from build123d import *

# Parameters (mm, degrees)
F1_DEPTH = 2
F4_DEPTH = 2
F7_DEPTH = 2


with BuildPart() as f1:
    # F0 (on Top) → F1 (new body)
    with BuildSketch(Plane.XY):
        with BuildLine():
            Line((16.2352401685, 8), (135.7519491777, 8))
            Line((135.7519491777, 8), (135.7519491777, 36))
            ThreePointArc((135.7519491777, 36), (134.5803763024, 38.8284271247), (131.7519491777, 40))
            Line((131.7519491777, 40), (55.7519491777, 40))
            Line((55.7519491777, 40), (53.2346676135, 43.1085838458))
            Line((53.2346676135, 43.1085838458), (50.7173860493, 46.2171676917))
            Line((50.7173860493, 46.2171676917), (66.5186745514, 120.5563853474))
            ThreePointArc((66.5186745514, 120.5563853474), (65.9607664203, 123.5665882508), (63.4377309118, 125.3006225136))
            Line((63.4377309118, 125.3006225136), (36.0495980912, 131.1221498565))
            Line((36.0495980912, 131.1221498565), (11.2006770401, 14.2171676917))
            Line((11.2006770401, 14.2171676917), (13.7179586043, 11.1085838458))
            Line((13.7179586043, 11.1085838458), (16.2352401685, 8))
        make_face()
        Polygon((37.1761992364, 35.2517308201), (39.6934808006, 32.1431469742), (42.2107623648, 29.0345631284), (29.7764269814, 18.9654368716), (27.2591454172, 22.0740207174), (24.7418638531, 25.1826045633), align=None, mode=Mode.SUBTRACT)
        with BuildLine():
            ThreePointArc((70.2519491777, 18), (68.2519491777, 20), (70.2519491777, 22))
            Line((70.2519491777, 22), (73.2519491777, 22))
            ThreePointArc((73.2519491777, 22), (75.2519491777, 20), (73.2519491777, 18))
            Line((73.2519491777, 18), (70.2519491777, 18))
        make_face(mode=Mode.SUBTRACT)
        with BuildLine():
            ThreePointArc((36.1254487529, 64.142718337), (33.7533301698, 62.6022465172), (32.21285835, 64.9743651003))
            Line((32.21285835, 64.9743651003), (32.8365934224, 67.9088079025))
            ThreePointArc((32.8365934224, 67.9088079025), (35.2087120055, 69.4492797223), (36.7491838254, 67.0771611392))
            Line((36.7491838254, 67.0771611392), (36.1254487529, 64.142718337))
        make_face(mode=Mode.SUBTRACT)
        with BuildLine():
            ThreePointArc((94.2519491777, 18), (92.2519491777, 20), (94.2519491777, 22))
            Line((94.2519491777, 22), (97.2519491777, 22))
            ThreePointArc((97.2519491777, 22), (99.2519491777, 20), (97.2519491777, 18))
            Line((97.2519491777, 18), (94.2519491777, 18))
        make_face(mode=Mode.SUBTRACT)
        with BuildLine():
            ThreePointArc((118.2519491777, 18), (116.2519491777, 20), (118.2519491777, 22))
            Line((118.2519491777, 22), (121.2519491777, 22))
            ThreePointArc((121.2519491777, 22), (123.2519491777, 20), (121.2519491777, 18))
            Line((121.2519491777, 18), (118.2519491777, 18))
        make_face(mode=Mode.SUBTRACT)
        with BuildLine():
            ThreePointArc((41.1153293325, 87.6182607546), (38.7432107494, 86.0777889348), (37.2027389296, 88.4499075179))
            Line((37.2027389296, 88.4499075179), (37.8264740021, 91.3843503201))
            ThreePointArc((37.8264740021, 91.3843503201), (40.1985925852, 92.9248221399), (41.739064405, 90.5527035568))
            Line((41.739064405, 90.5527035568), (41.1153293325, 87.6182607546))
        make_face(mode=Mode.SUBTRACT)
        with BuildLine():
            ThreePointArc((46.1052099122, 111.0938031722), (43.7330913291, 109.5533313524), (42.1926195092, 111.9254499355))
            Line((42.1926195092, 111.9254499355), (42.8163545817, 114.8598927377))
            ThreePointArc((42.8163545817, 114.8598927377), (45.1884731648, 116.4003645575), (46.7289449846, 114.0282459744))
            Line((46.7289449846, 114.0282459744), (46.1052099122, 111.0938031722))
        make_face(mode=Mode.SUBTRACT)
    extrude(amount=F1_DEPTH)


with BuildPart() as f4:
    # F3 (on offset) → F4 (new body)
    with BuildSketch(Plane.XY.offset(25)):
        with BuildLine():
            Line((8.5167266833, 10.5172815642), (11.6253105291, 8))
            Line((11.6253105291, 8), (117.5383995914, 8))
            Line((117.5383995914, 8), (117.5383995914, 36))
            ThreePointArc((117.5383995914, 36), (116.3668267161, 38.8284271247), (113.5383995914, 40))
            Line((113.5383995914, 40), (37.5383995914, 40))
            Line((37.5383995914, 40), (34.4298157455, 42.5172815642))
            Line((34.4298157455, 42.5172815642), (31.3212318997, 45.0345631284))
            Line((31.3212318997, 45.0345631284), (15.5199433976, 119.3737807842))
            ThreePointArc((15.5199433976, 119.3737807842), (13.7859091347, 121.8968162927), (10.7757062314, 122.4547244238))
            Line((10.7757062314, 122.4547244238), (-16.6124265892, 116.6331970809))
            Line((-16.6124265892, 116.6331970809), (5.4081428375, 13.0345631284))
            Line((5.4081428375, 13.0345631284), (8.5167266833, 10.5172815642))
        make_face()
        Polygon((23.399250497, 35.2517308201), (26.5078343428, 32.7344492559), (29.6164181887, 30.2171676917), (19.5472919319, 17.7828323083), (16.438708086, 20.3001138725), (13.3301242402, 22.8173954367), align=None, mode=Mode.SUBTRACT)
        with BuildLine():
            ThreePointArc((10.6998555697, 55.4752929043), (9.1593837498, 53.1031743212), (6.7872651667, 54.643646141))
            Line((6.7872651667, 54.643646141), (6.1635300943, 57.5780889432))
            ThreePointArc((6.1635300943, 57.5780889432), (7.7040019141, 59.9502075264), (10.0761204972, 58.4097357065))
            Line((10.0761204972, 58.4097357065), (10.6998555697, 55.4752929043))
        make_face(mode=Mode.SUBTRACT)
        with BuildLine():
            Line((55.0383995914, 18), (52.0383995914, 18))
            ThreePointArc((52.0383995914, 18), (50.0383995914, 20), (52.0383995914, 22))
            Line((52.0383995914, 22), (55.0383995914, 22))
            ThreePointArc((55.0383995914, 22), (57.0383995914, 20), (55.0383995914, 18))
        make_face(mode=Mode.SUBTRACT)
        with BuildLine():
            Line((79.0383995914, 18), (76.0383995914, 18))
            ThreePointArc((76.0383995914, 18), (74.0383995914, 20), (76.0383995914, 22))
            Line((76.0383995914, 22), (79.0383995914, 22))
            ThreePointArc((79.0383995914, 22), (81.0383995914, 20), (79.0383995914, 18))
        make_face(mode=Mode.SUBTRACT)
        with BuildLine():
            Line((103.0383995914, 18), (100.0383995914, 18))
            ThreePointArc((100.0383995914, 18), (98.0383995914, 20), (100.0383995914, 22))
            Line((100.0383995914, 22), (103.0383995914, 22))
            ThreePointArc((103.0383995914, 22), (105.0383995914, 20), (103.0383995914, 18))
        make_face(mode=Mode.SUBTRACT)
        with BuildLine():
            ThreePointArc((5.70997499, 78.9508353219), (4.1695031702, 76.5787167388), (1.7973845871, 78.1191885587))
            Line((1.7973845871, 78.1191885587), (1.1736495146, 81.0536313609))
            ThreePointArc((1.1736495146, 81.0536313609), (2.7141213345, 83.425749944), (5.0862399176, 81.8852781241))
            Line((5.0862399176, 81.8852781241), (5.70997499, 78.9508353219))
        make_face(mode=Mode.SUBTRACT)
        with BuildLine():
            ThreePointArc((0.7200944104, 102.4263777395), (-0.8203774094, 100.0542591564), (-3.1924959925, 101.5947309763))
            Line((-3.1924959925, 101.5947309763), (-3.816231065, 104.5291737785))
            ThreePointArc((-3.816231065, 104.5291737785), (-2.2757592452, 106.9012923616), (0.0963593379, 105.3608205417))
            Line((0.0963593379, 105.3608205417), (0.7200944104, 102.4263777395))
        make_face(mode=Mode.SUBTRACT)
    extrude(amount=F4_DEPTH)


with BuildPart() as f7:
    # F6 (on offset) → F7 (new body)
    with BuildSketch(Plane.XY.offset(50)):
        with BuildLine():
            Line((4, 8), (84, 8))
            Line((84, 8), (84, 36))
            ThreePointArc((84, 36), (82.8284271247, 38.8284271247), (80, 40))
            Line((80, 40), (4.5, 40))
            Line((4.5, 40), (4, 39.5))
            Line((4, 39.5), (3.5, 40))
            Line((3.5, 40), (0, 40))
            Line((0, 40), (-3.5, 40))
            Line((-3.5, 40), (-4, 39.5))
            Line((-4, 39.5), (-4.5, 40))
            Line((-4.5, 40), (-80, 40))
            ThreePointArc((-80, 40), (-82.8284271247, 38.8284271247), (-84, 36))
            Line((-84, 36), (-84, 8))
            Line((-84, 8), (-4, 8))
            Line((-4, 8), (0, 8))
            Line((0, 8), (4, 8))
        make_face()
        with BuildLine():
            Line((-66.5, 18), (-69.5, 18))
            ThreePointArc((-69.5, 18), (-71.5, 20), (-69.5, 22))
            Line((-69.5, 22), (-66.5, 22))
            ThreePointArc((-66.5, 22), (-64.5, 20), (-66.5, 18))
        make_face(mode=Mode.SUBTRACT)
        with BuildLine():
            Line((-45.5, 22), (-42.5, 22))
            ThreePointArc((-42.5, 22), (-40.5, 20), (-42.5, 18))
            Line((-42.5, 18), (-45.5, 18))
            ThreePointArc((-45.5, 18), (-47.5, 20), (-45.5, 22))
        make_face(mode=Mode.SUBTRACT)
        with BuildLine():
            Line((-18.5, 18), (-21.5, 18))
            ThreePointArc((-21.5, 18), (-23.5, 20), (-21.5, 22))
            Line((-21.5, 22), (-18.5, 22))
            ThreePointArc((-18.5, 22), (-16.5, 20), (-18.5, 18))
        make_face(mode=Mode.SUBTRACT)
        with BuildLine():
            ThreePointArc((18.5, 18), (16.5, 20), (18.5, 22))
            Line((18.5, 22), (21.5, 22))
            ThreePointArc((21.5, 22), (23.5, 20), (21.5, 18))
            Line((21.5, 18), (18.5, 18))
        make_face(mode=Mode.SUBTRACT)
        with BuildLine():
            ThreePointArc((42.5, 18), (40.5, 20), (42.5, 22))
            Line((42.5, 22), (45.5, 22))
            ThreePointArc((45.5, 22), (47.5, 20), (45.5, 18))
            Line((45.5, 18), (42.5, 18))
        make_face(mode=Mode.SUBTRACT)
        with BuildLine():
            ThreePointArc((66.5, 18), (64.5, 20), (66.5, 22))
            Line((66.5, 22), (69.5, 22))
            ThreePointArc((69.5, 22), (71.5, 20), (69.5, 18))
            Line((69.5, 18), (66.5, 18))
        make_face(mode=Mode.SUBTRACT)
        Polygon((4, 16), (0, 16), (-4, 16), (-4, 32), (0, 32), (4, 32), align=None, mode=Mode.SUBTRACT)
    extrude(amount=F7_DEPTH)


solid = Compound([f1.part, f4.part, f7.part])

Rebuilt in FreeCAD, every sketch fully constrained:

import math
import FreeCAD as App
import Part
import Sketcher
Q = App.Units.Quantity


def add_polygon(sketch, points):
    """Adds a closed chain of lines whose ends are joined by coincident constraints."""
    first, n = sketch.GeometryCount, len(points)
    for a, b in zip(points, points[1:] + points[:1]):
        sketch.addGeometry(Part.LineSegment(App.Vector(*a, 0), App.Vector(*b, 0)), False)
    for i in range(n):
        sketch.addConstraint(Sketcher.Constraint("Coincident", first + i, 2, first + (i + 1) % n, 1))

doc = App.newDocument("Part")
params = doc.addObject("Spreadsheet::Sheet", "Params")
for row, (alias, value) in enumerate([
    ("sketch1_radius", "4 mm"),
    ("sketch1_radius2", "2 mm"),
    ("sketch1_width", "76 mm"),
    ("sketch1_width2", "3 mm"),
    ("sketch1_height", "28 mm"),
    ("pad1_length", "2 mm"),
    ("sketch2_radius", "4 mm"),
    ("sketch2_radius2", "2 mm"),
    ("sketch2_width", "76 mm"),
    ("sketch2_width2", "3 mm"),
    ("sketch2_height", "28 mm"),
    ("pad2_length", "2 mm"),
    ("sketch3_radius", "4 mm"),
    ("sketch3_radius2", "2 mm"),
    ("sketch3_width", "7 mm"),
    ("sketch3_width2", "168 mm"),
    ("sketch3_width3", "3 mm"),
    ("pad3_length", "2 mm"),
], start=1):
    params.set(f"A{row}", alias)
    params.set(f"B{row}", "=" + value)
    params.setAlias(f"B{row}", alias)

body = doc.addObject("PartDesign::Body", "Body")

# Sketch on XY plane
sketch1 = body.newObject("Sketcher::SketchObject", "Sketch")
sketch1.AttachmentSupport = (doc.getObject("XY_Plane"), [""])
sketch1.MapMode = "FlatFace"
sketch1.addGeometry(Part.LineSegment(App.Vector(16.23524, 8, 0), App.Vector(135.751949, 8, 0)), False)  # 0
sketch1.addGeometry(Part.LineSegment(App.Vector(135.751949, 8, 0), App.Vector(135.751949, 36, 0)), False)  # 1
sketch1.addGeometry(Part.ArcOfCircle(Part.Circle(App.Vector(131.751949, 36, 0), App.Vector(0, 0, 1), 4), math.radians(0), math.radians(90)), False)  # 2
sketch1.addGeometry(Part.LineSegment(App.Vector(131.751949, 40, 0), App.Vector(55.751949, 40, 0)), False)  # 3
sketch1.addGeometry(Part.LineSegment(App.Vector(55.751949, 40, 0), App.Vector(53.234668, 43.108584, 0)), False)  # 4
sketch1.addGeometry(Part.LineSegment(App.Vector(53.234668, 43.108584, 0), App.Vector(50.717386, 46.217168, 0)), False)  # 5
sketch1.addGeometry(Part.LineSegment(App.Vector(50.717386, 46.217168, 0), App.Vector(66.518675, 120.556385, 0)), False)  # 6
sketch1.addGeometry(Part.ArcOfCircle(Part.Circle(App.Vector(62.606084, 121.388032, 0), App.Vector(0, 0, 1), 4), math.radians(-12), math.radians(78)), False)  # 7
sketch1.addGeometry(Part.LineSegment(App.Vector(63.437731, 125.300623, 0), App.Vector(36.049598, 131.12215, 0)), False)  # 8
sketch1.addGeometry(Part.LineSegment(App.Vector(36.049598, 131.12215, 0), App.Vector(11.200677, 14.217168, 0)), False)  # 9
sketch1.addGeometry(Part.LineSegment(App.Vector(11.200677, 14.217168, 0), App.Vector(13.717959, 11.108584, 0)), False)  # 10
sketch1.addGeometry(Part.LineSegment(App.Vector(13.717959, 11.108584, 0), App.Vector(16.23524, 8, 0)), False)  # 11
add_polygon(sketch1, [(24.741864, 25.182605), (37.176199, 35.251731), (39.693481, 32.143147), (42.210762, 29.034563), (29.776427, 18.965437), (27.259145, 22.074021)])  # lines 12-17
sketch1.addGeometry(Part.LineSegment(App.Vector(73.251949, 18, 0), App.Vector(70.251949, 18, 0)), False)  # 18
sketch1.addGeometry(Part.ArcOfCircle(Part.Circle(App.Vector(70.251949, 20, 0), App.Vector(0, 0, 1), 2), math.radians(90), math.radians(270)), False)  # 19
sketch1.addGeometry(Part.LineSegment(App.Vector(70.251949, 22, 0), App.Vector(73.251949, 22, 0)), False)  # 20
sketch1.addGeometry(Part.ArcOfCircle(Part.Circle(App.Vector(73.251949, 20, 0), App.Vector(0, 0, 1), 2), math.radians(-90), math.radians(90)), False)  # 21
sketch1.addGeometry(Part.LineSegment(App.Vector(36.749184, 67.077161, 0), App.Vector(36.125449, 64.142718, 0)), False)  # 22
sketch1.addGeometry(Part.ArcOfCircle(Part.Circle(App.Vector(34.169154, 64.558542, 0), App.Vector(0, 0, 1), 2), math.radians(168), math.radians(348)), False)  # 23
sketch1.addGeometry(Part.LineSegment(App.Vector(32.212858, 64.974365, 0), App.Vector(32.836593, 67.908808, 0)), False)  # 24
sketch1.addGeometry(Part.ArcOfCircle(Part.Circle(App.Vector(34.792889, 67.492985, 0), App.Vector(0, 0, 1), 2), math.radians(-12), math.radians(168)), False)  # 25
sketch1.addGeometry(Part.LineSegment(App.Vector(97.251949, 18, 0), App.Vector(94.251949, 18, 0)), False)  # 26
sketch1.addGeometry(Part.ArcOfCircle(Part.Circle(App.Vector(94.251949, 20, 0), App.Vector(0, 0, 1), 2), math.radians(90), math.radians(270)), False)  # 27
sketch1.addGeometry(Part.LineSegment(App.Vector(94.251949, 22, 0), App.Vector(97.251949, 22, 0)), False)  # 28
sketch1.addGeometry(Part.ArcOfCircle(Part.Circle(App.Vector(97.251949, 20, 0), App.Vector(0, 0, 1), 2), math.radians(-90), math.radians(90)), False)  # 29
sketch1.addGeometry(Part.LineSegment(App.Vector(121.251949, 18, 0), App.Vector(118.251949, 18, 0)), False)  # 30
sketch1.addGeometry(Part.ArcOfCircle(Part.Circle(App.Vector(118.251949, 20, 0), App.Vector(0, 0, 1), 2), math.radians(90), math.radians(270)), False)  # 31
sketch1.addGeometry(Part.LineSegment(App.Vector(118.251949, 22, 0), App.Vector(121.251949, 22, 0)), False)  # 32
sketch1.addGeometry(Part.ArcOfCircle(Part.Circle(App.Vector(121.251949, 20, 0), App.Vector(0, 0, 1), 2), math.radians(-90), math.radians(90)), False)  # 33
sketch1.addGeometry(Part.LineSegment(App.Vector(41.739064, 90.552704, 0), App.Vector(41.115329, 87.618261, 0)), False)  # 34
sketch1.addGeometry(Part.ArcOfCircle(Part.Circle(App.Vector(39.159034, 88.034084, 0), App.Vector(0, 0, 1), 2), math.radians(168), math.radians(348)), False)  # 35
sketch1.addGeometry(Part.LineSegment(App.Vector(37.202739, 88.449908, 0), App.Vector(37.826474, 91.38435, 0)), False)  # 36
sketch1.addGeometry(Part.ArcOfCircle(Part.Circle(App.Vector(39.782769, 90.968527, 0), App.Vector(0, 0, 1), 2), math.radians(-12), math.radians(168)), False)  # 37
sketch1.addGeometry(Part.LineSegment(App.Vector(46.728945, 114.028246, 0), App.Vector(46.10521, 111.093803, 0)), False)  # 38
sketch1.addGeometry(Part.ArcOfCircle(Part.Circle(App.Vector(44.148915, 111.509627, 0), App.Vector(0, 0, 1), 2), math.radians(168), math.radians(348)), False)  # 39
sketch1.addGeometry(Part.LineSegment(App.Vector(42.19262, 111.92545, 0), App.Vector(42.816355, 114.859893, 0)), False)  # 40
sketch1.addGeometry(Part.ArcOfCircle(Part.Circle(App.Vector(44.77265, 114.444069, 0), App.Vector(0, 0, 1), 2), math.radians(-12), math.radians(168)), False)  # 41
sketch1.addConstraint([
    Sketcher.Constraint("Coincident", 0, 2, 1, 1),
    Sketcher.Constraint("Tangent", 1, 2, 2, 1),
    Sketcher.Constraint("Tangent", 2, 2, 3, 1),
    Sketcher.Constraint("Coincident", 3, 2, 4, 1),
    Sketcher.Constraint("Coincident", 4, 2, 5, 1),
    Sketcher.Constraint("Coincident", 5, 2, 6, 1),
    Sketcher.Constraint("Tangent", 6, 2, 7, 1),
    Sketcher.Constraint("Tangent", 7, 2, 8, 1),
    Sketcher.Constraint("Coincident", 8, 2, 9, 1),
    Sketcher.Constraint("Coincident", 9, 2, 10, 1),
    Sketcher.Constraint("Coincident", 10, 2, 11, 1),
    Sketcher.Constraint("Coincident", 11, 2, 0, 1),
    Sketcher.Constraint("Tangent", 18, 2, 19, 2),
    Sketcher.Constraint("Tangent", 19, 1, 20, 1),
    Sketcher.Constraint("Tangent", 20, 2, 21, 2),
    Sketcher.Constraint("Tangent", 21, 1, 18, 1),
    Sketcher.Constraint("Tangent", 22, 2, 23, 2),
    Sketcher.Constraint("Tangent", 23, 1, 24, 1),
    Sketcher.Constraint("Tangent", 24, 2, 25, 2),
    Sketcher.Constraint("Tangent", 25, 1, 22, 1),
    Sketcher.Constraint("Tangent", 26, 2, 27, 2),
    Sketcher.Constraint("Tangent", 27, 1, 28, 1),
    Sketcher.Constraint("Tangent", 28, 2, 29, 2),
    Sketcher.Constraint("Tangent", 29, 1, 26, 1),
    Sketcher.Constraint("Tangent", 30, 2, 31, 2),
    Sketcher.Constraint("Tangent", 31, 1, 32, 1),
    Sketcher.Constraint("Tangent", 32, 2, 33, 2),
    Sketcher.Constraint("Tangent", 33, 1, 30, 1),
    Sketcher.Constraint("Tangent", 34, 2, 35, 2),
    Sketcher.Constraint("Tangent", 35, 1, 36, 1),
    Sketcher.Constraint("Tangent", 36, 2, 37, 2),
    Sketcher.Constraint("Tangent", 37, 1, 34, 1),
    Sketcher.Constraint("Tangent", 38, 2, 39, 2),
    Sketcher.Constraint("Tangent", 39, 1, 40, 1),
    Sketcher.Constraint("Tangent", 40, 2, 41, 2),
    Sketcher.Constraint("Tangent", 41, 1, 38, 1),
    Sketcher.Constraint("Horizontal", 0),
    Sketcher.Constraint("Vertical", 1),
    Sketcher.Constraint("Horizontal", 3),
    Sketcher.Constraint("Horizontal", 18),
    Sketcher.Constraint("Horizontal", 20),
    Sketcher.Constraint("Horizontal", 26),
    Sketcher.Constraint("Horizontal", 28),
    Sketcher.Constraint("Horizontal", 30),
    Sketcher.Constraint("Horizontal", 32),
    Sketcher.Constraint("Equal", 2, 7),
    Sketcher.Constraint("Equal", 21, 23),
    Sketcher.Constraint("Equal", 23, 25),
    Sketcher.Constraint("Equal", 25, 27),
    Sketcher.Constraint("Equal", 29, 31),
    Sketcher.Constraint("Equal", 33, 35),
    Sketcher.Constraint("Equal", 35, 37),
    Sketcher.Constraint("Equal", 37, 39),
    Sketcher.Constraint("Equal", 39, 41),
    Sketcher.Constraint("Parallel", 4, 5),
    Sketcher.Constraint("Perpendicular", 6, 8),
    Sketcher.Constraint("Perpendicular", 8, 9),
    Sketcher.Constraint("Parallel", 5, 10),
    Sketcher.Constraint("Parallel", 10, 11),
    Sketcher.Constraint("Perpendicular", 11, 12),
    Sketcher.Constraint("Perpendicular", 12, 13),
    Sketcher.Constraint("Parallel", 13, 14),
    Sketcher.Constraint("Perpendicular", 14, 15),
    Sketcher.Constraint("Perpendicular", 15, 16),
    Sketcher.Constraint("Parallel", 16, 17),
    Sketcher.Constraint("Parallel", 9, 22),
    Sketcher.Constraint("Parallel", 24, 34),
    Sketcher.Constraint("Parallel", 36, 38),
    Sketcher.Constraint("Horizontal", 21, 3, 27, 3),
    Sketcher.Constraint("Horizontal", 29, 3, 31, 3),
    Sketcher.Constraint("Equal", 20, 26),
    Sketcher.Constraint("Equal", 28, 30),
    Sketcher.Constraint("Equal", 4, 5),
    Sketcher.Constraint("Equal", 5, 10),
    Sketcher.Constraint("Equal", 10, 11),
    Sketcher.Constraint("Equal", 11, 13),
    Sketcher.Constraint("Equal", 13, 14),
    Sketcher.Constraint("Equal", 14, 16),
    Sketcher.Constraint("Equal", 24, 34),
    Sketcher.Constraint("Equal", 36, 38),
    Sketcher.Constraint("Radius", 2, Q("4 mm")),
    Sketcher.Constraint("Radius", 19, Q("2 mm")),
    Sketcher.Constraint("DistanceX", 3, 2, 3, 1, Q("76 mm")),
    Sketcher.Constraint("DistanceX", 18, 2, 18, 1, Q("3 mm")),
    Sketcher.Constraint("DistanceY", 1, 1, 1, 2, Q("28 mm")),
    Sketcher.Constraint("Angle", 4, Q("129 deg")),
    Sketcher.Constraint("Angle", 6, Q("78 deg")),
    Sketcher.Constraint("Distance", 4, Q("4 mm")),
    Sketcher.Constraint("Distance", 6, Q("76 mm")),
    Sketcher.Constraint("Distance", 8, Q("28 mm")),
    Sketcher.Constraint("Distance", 12, Q("16 mm")),
    Sketcher.Constraint("Distance", 22, Q("3 mm")),
    Sketcher.Constraint("DistanceY", -1, 1, 2, 3, Q("36 mm")),
    Sketcher.Constraint("DistanceY", -1, 1, 19, 3, Q("20 mm")),
    Sketcher.Constraint("DistanceX", 21, 3, 27, 3, Q("21 mm")),
    Sketcher.Constraint("DistanceX", 29, 3, 31, 3, Q("21 mm")),
    Sketcher.Constraint("DistanceX", 19, 3, 2, 3, Q("61.5 mm")),
    Sketcher.Constraint("DistanceX", -1, 1, 8, 2, Q("36.049598 mm")),
    Sketcher.Constraint("DistanceX", -1, 1, 12, 2, Q("37.176199 mm")),
    Sketcher.Constraint("DistanceY", 25, 3, 35, 3, Q("20.5411 mm")),
    Sketcher.Constraint("DistanceY", 37, 3, 39, 3, Q("20.5411 mm")),
    Sketcher.Constraint("DistanceY", 4, 2, 25, 3, Q("24.384401 mm")),
    Sketcher.Constraint("DistanceX", -1, 1, 25, 3, Q("34.792889 mm")),
    Sketcher.Constraint("DistanceX", -1, 1, 37, 3, Q("39.782769 mm")),
    Sketcher.Constraint("DistanceX", -1, 1, 41, 3, Q("44.77265 mm")),
    Sketcher.Constraint("DistanceY", -1, 1, 12, 2, Q("35.251731 mm")),
])
sketch1.setExpression("Constraints[86]", "Params.sketch1_radius")
sketch1.setExpression("Constraints[87]", "Params.sketch1_radius2")
sketch1.setExpression("Constraints[88]", "Params.sketch1_width")
sketch1.setExpression("Constraints[89]", "Params.sketch1_width2")
sketch1.setExpression("Constraints[90]", "Params.sketch1_height")
pad1 = body.newObject("PartDesign::Pad", "Pad")
pad1.Profile = sketch1
pad1.setExpression("Length", "Params.pad1_length")
body2 = doc.addObject("PartDesign::Body", "Body001")

# Sketch on XY plane
sketch2 = body2.newObject("Sketcher::SketchObject", "Sketch001")
sketch2.AttachmentSupport = (doc.getObject("XY_Plane001"), [""])
sketch2.MapMode = "FlatFace"
sketch2.AttachmentOffset = App.Placement(App.Vector(0, 0, 25), App.Rotation())
sketch2.addGeometry(Part.LineSegment(App.Vector(11.625311, 8, 0), App.Vector(117.5384, 8, 0)), False)  # 0
sketch2.addGeometry(Part.LineSegment(App.Vector(117.5384, 8, 0), App.Vector(117.5384, 36, 0)), False)  # 1
sketch2.addGeometry(Part.ArcOfCircle(Part.Circle(App.Vector(113.5384, 36, 0), App.Vector(0, 0, 1), 4), math.radians(0), math.radians(90)), False)  # 2
sketch2.addGeometry(Part.LineSegment(App.Vector(113.5384, 40, 0), App.Vector(37.5384, 40, 0)), False)  # 3
sketch2.addGeometry(Part.LineSegment(App.Vector(37.5384, 40, 0), App.Vector(34.429816, 42.517282, 0)), False)  # 4
sketch2.addGeometry(Part.LineSegment(App.Vector(34.429816, 42.517282, 0), App.Vector(31.321232, 45.034563, 0)), False)  # 5
sketch2.addGeometry(Part.LineSegment(App.Vector(31.321232, 45.034563, 0), App.Vector(15.519943, 119.373781, 0)), False)  # 6
sketch2.addGeometry(Part.ArcOfCircle(Part.Circle(App.Vector(11.607353, 118.542134, 0), App.Vector(0, 0, 1), 4), math.radians(12), math.radians(102)), False)  # 7
sketch2.addGeometry(Part.LineSegment(App.Vector(10.775706, 122.454724, 0), App.Vector(-16.612427, 116.633197, 0)), False)  # 8
sketch2.addGeometry(Part.LineSegment(App.Vector(-16.612427, 116.633197, 0), App.Vector(5.408143, 13.034563, 0)), False)  # 9
sketch2.addGeometry(Part.LineSegment(App.Vector(5.408143, 13.034563, 0), App.Vector(11.625311, 8, 0)), False)  # 10
add_polygon(sketch2, [(13.330124, 22.817395), (23.39925, 35.251731), (26.507834, 32.734449), (29.616418, 30.217168), (19.547292, 17.782832), (16.438708, 20.300114)])  # lines 11-16
sketch2.addGeometry(Part.LineSegment(App.Vector(10.07612, 58.409736, 0), App.Vector(10.699856, 55.475293, 0)), False)  # 17
sketch2.addGeometry(Part.ArcOfCircle(Part.Circle(App.Vector(8.74356, 55.05947, 0), App.Vector(0, 0, 1), 2), math.radians(-168), math.radians(12)), False)  # 18
sketch2.addGeometry(Part.LineSegment(App.Vector(6.787265, 54.643646, 0), App.Vector(6.16353, 57.578089, 0)), False)  # 19
sketch2.addGeometry(Part.ArcOfCircle(Part.Circle(App.Vector(8.119825, 57.993912, 0), App.Vector(0, 0, 1), 2), math.radians(12), math.radians(192)), False)  # 20
sketch2.addGeometry(Part.ArcOfCircle(Part.Circle(App.Vector(55.0384, 20, 0), App.Vector(0, 0, 1), 2), math.radians(-90), math.radians(90)), False)  # 21
sketch2.addGeometry(Part.LineSegment(App.Vector(55.0384, 18, 0), App.Vector(52.0384, 18, 0)), False)  # 22
sketch2.addGeometry(Part.ArcOfCircle(Part.Circle(App.Vector(52.0384, 20, 0), App.Vector(0, 0, 1), 2), math.radians(90), math.radians(270)), False)  # 23
sketch2.addGeometry(Part.LineSegment(App.Vector(52.0384, 22, 0), App.Vector(55.0384, 22, 0)), False)  # 24
sketch2.addGeometry(Part.ArcOfCircle(Part.Circle(App.Vector(79.0384, 20, 0), App.Vector(0, 0, 1), 2), math.radians(-90), math.radians(90)), False)  # 25
sketch2.addGeometry(Part.LineSegment(App.Vector(79.0384, 18, 0), App.Vector(76.0384, 18, 0)), False)  # 26
sketch2.addGeometry(Part.ArcOfCircle(Part.Circle(App.Vector(76.0384, 20, 0), App.Vector(0, 0, 1), 2), math.radians(90), math.radians(270)), False)  # 27
sketch2.addGeometry(Part.LineSegment(App.Vector(76.0384, 22, 0), App.Vector(79.0384, 22, 0)), False)  # 28
sketch2.addGeometry(Part.ArcOfCircle(Part.Circle(App.Vector(103.0384, 20, 0), App.Vector(0, 0, 1), 2), math.radians(-90), math.radians(90)), False)  # 29
sketch2.addGeometry(Part.LineSegment(App.Vector(103.0384, 18, 0), App.Vector(100.0384, 18, 0)), False)  # 30
sketch2.addGeometry(Part.ArcOfCircle(Part.Circle(App.Vector(100.0384, 20, 0), App.Vector(0, 0, 1), 2), math.radians(90), math.radians(270)), False)  # 31
sketch2.addGeometry(Part.LineSegment(App.Vector(100.0384, 22, 0), App.Vector(103.0384, 22, 0)), False)  # 32
sketch2.addGeometry(Part.LineSegment(App.Vector(5.08624, 81.885278, 0), App.Vector(5.709975, 78.950835, 0)), False)  # 33
sketch2.addGeometry(Part.ArcOfCircle(Part.Circle(App.Vector(3.75368, 78.535012, 0), App.Vector(0, 0, 1), 2), math.radians(-168), math.radians(12)), False)  # 34
sketch2.addGeometry(Part.LineSegment(App.Vector(1.797385, 78.119189, 0), App.Vector(1.17365, 81.053631, 0)), False)  # 35
sketch2.addGeometry(Part.ArcOfCircle(Part.Circle(App.Vector(3.129945, 81.469455, 0), App.Vector(0, 0, 1), 2), math.radians(12), math.radians(192)), False)  # 36
sketch2.addGeometry(Part.LineSegment(App.Vector(0.096359, 105.360821, 0), App.Vector(0.720094, 102.426378, 0)), False)  # 37
sketch2.addGeometry(Part.ArcOfCircle(Part.Circle(App.Vector(-1.236201, 102.010554, 0), App.Vector(0, 0, 1), 2), math.radians(-168), math.radians(12)), False)  # 38
sketch2.addGeometry(Part.LineSegment(App.Vector(-3.192496, 101.594731, 0), App.Vector(-3.816231, 104.529174, 0)), False)  # 39
sketch2.addGeometry(Part.ArcOfCircle(Part.Circle(App.Vector(-1.859936, 104.944997, 0), App.Vector(0, 0, 1), 2), math.radians(12), math.radians(192)), False)  # 40
sketch2.addConstraint([
    Sketcher.Constraint("Coincident", 0, 2, 1, 1),
    Sketcher.Constraint("Tangent", 1, 2, 2, 1),
    Sketcher.Constraint("Tangent", 2, 2, 3, 1),
    Sketcher.Constraint("Coincident", 3, 2, 4, 1),
    Sketcher.Constraint("Coincident", 4, 2, 5, 1),
    Sketcher.Constraint("Coincident", 5, 2, 6, 1),
    Sketcher.Constraint("Tangent", 6, 2, 7, 1),
    Sketcher.Constraint("Tangent", 7, 2, 8, 1),
    Sketcher.Constraint("Coincident", 8, 2, 9, 1),
    Sketcher.Constraint("Coincident", 9, 2, 10, 1),
    Sketcher.Constraint("Coincident", 10, 2, 0, 1),
    Sketcher.Constraint("Tangent", 17, 2, 18, 2),
    Sketcher.Constraint("Tangent", 18, 1, 19, 1),
    Sketcher.Constraint("Tangent", 19, 2, 20, 2),
    Sketcher.Constraint("Tangent", 20, 1, 17, 1),
    Sketcher.Constraint("Tangent", 21, 1, 22, 1),
    Sketcher.Constraint("Tangent", 22, 2, 23, 2),
    Sketcher.Constraint("Tangent", 23, 1, 24, 1),
    Sketcher.Constraint("Tangent", 24, 2, 21, 2),
    Sketcher.Constraint("Tangent", 25, 1, 26, 1),
    Sketcher.Constraint("Tangent", 26, 2, 27, 2),
    Sketcher.Constraint("Tangent", 27, 1, 28, 1),
    Sketcher.Constraint("Tangent", 28, 2, 25, 2),
    Sketcher.Constraint("Tangent", 29, 1, 30, 1),
    Sketcher.Constraint("Tangent", 30, 2, 31, 2),
    Sketcher.Constraint("Tangent", 31, 1, 32, 1),
    Sketcher.Constraint("Tangent", 32, 2, 29, 2),
    Sketcher.Constraint("Tangent", 33, 2, 34, 2),
    Sketcher.Constraint("Tangent", 34, 1, 35, 1),
    Sketcher.Constraint("Tangent", 35, 2, 36, 2),
    Sketcher.Constraint("Tangent", 36, 1, 33, 1),
    Sketcher.Constraint("Tangent", 37, 2, 38, 2),
    Sketcher.Constraint("Tangent", 38, 1, 39, 1),
    Sketcher.Constraint("Tangent", 39, 2, 40, 2),
    Sketcher.Constraint("Tangent", 40, 1, 37, 1),
    Sketcher.Constraint("Horizontal", 0),
    Sketcher.Constraint("Vertical", 1),
    Sketcher.Constraint("Horizontal", 3),
    Sketcher.Constraint("Horizontal", 22),
    Sketcher.Constraint("Horizontal", 24),
    Sketcher.Constraint("Horizontal", 26),
    Sketcher.Constraint("Horizontal", 28),
    Sketcher.Constraint("Horizontal", 30),
    Sketcher.Constraint("Horizontal", 32),
    Sketcher.Constraint("Equal", 2, 7),
    Sketcher.Constraint("Equal", 18, 20),
    Sketcher.Constraint("Equal", 20, 21),
    Sketcher.Constraint("Equal", 23, 25),
    Sketcher.Constraint("Equal", 27, 29),
    Sketcher.Constraint("Equal", 31, 34),
    Sketcher.Constraint("Equal", 34, 36),
    Sketcher.Constraint("Equal", 36, 38),
    Sketcher.Constraint("Equal", 38, 40),
    Sketcher.Constraint("Parallel", 4, 5),
    Sketcher.Constraint("Perpendicular", 6, 8),
    Sketcher.Constraint("Perpendicular", 8, 9),
    Sketcher.Constraint("Parallel", 5, 10),
    Sketcher.Constraint("Perpendicular", 10, 11),
    Sketcher.Constraint("Perpendicular", 11, 12),
    Sketcher.Constraint("Parallel", 12, 13),
    Sketcher.Constraint("Perpendicular", 13, 14),
    Sketcher.Constraint("Perpendicular", 14, 15),
    Sketcher.Constraint("Parallel", 15, 16),
    Sketcher.Constraint("Parallel", 9, 17),
    Sketcher.Constraint("Parallel", 19, 33),
    Sketcher.Constraint("Parallel", 35, 37),
    Sketcher.Constraint("Horizontal", 23, 3, 25, 3),
    Sketcher.Constraint("Horizontal", 27, 3, 29, 3),
    Sketcher.Constraint("Equal", 24, 26),
    Sketcher.Constraint("Equal", 28, 30),
    Sketcher.Constraint("Equal", 4, 5),
    Sketcher.Constraint("Equal", 5, 12),
    Sketcher.Constraint("Equal", 12, 13),
    Sketcher.Constraint("Equal", 13, 15),
    Sketcher.Constraint("Equal", 19, 33),
    Sketcher.Constraint("Equal", 35, 37),
    Sketcher.Constraint("Radius", 2, Q("4 mm")),
    Sketcher.Constraint("Radius", 18, Q("2 mm")),
    Sketcher.Constraint("DistanceX", 3, 2, 3, 1, Q("76 mm")),
    Sketcher.Constraint("DistanceX", 22, 2, 22, 1, Q("3 mm")),
    Sketcher.Constraint("DistanceY", 1, 1, 1, 2, Q("28 mm")),
    Sketcher.Constraint("Angle", 4, Q("141 deg")),
    Sketcher.Constraint("Angle", 6, Q("102 deg")),
    Sketcher.Constraint("Distance", 4, Q("4 mm")),
    Sketcher.Constraint("Distance", 6, Q("76 mm")),
    Sketcher.Constraint("Distance", 8, Q("28 mm")),
    Sketcher.Constraint("Distance", 10, Q("8 mm")),
    Sketcher.Constraint("Distance", 11, Q("16 mm")),
    Sketcher.Constraint("Distance", 17, Q("3 mm")),
    Sketcher.Constraint("DistanceY", -1, 1, 2, 3, Q("36 mm")),
    Sketcher.Constraint("DistanceY", -1, 1, 21, 3, Q("20 mm")),
    Sketcher.Constraint("DistanceX", 21, 3, 25, 3, Q("24 mm")),
    Sketcher.Constraint("DistanceX", 25, 3, 29, 3, Q("24 mm")),
    Sketcher.Constraint("DistanceX", 21, 3, 2, 3, Q("58.5 mm")),
    Sketcher.Constraint("DistanceX", 36, 3, 6, 2, Q("12.389999 mm")),
    Sketcher.Constraint("DistanceX", -1, 1, 2, 3, Q("113.5384 mm")),
    Sketcher.Constraint("DistanceX", 38, 3, -1, 1, Q("1.236201 mm")),
    Sketcher.Constraint("DistanceY", 20, 3, 34, 3, Q("20.5411 mm")),
    Sketcher.Constraint("DistanceY", 36, 3, 38, 3, Q("20.5411 mm")),
    Sketcher.Constraint("DistanceY", 40, 3, 8, 2, Q("11.6882 mm")),
    Sketcher.Constraint("DistanceX", -1, 1, 18, 3, Q("8.74356 mm")),
    Sketcher.Constraint("DistanceX", -1, 1, 11, 2, Q("23.39925 mm")),
    Sketcher.Constraint("DistanceY", -1, 1, 11, 2, Q("35.251731 mm")),
])
sketch2.setExpression("Constraints[82]", "Params.sketch2_radius")
sketch2.setExpression("Constraints[83]", "Params.sketch2_radius2")
sketch2.setExpression("Constraints[84]", "Params.sketch2_width")
sketch2.setExpression("Constraints[85]", "Params.sketch2_width2")
sketch2.setExpression("Constraints[86]", "Params.sketch2_height")
pad2 = body2.newObject("PartDesign::Pad", "Pad001")
pad2.Profile = sketch2
pad2.setExpression("Length", "Params.pad2_length")
body3 = doc.addObject("PartDesign::Body", "Body002")

# Sketch on XY plane
sketch3 = body3.newObject("Sketcher::SketchObject", "Sketch002")
sketch3.AttachmentSupport = (doc.getObject("XY_Plane002"), [""])
sketch3.MapMode = "FlatFace"
sketch3.AttachmentOffset = App.Placement(App.Vector(0, 0, 50), App.Rotation())
sketch3.addGeometry(Part.LineSegment(App.Vector(84, 8, 0), App.Vector(84, 36, 0)), False)  # 0
sketch3.addGeometry(Part.ArcOfCircle(Part.Circle(App.Vector(80, 36, 0), App.Vector(0, 0, 1), 4), math.radians(0), math.radians(90)), False)  # 1
sketch3.addGeometry(Part.LineSegment(App.Vector(80, 40, 0), App.Vector(4.5, 40, 0)), False)  # 2
sketch3.addGeometry(Part.LineSegment(App.Vector(4.5, 40, 0), App.Vector(4, 39.5, 0)), False)  # 3
sketch3.addGeometry(Part.LineSegment(App.Vector(4, 39.5, 0), App.Vector(3.5, 40, 0)), False)  # 4
sketch3.addGeometry(Part.LineSegment(App.Vector(3.5, 40, 0), App.Vector(-3.5, 40, 0)), False)  # 5
sketch3.addGeometry(Part.LineSegment(App.Vector(-3.5, 40, 0), App.Vector(-4, 39.5, 0)), False)  # 6
sketch3.addGeometry(Part.LineSegment(App.Vector(-4, 39.5, 0), App.Vector(-4.5, 40, 0)), False)  # 7
sketch3.addGeometry(Part.LineSegment(App.Vector(-4.5, 40, 0), App.Vector(-80, 40, 0)), False)  # 8
sketch3.addGeometry(Part.ArcOfCircle(Part.Circle(App.Vector(-80, 36, 0), App.Vector(0, 0, 1), 4), math.radians(90), math.radians(180)), False)  # 9
sketch3.addGeometry(Part.LineSegment(App.Vector(-84, 36, 0), App.Vector(-84, 8, 0)), False)  # 10
sketch3.addGeometry(Part.LineSegment(App.Vector(-84, 8, 0), App.Vector(84, 8, 0)), False)  # 11
sketch3.addGeometry(Part.ArcOfCircle(Part.Circle(App.Vector(-66.5, 20, 0), App.Vector(0, 0, 1), 2), math.radians(-90), math.radians(90)), False)  # 12
sketch3.addGeometry(Part.LineSegment(App.Vector(-66.5, 18, 0), App.Vector(-69.5, 18, 0)), False)  # 13
sketch3.addGeometry(Part.ArcOfCircle(Part.Circle(App.Vector(-69.5, 20, 0), App.Vector(0, 0, 1), 2), math.radians(90), math.radians(270)), False)  # 14
sketch3.addGeometry(Part.LineSegment(App.Vector(-69.5, 22, 0), App.Vector(-66.5, 22, 0)), False)  # 15
sketch3.addGeometry(Part.ArcOfCircle(Part.Circle(App.Vector(-45.5, 20, 0), App.Vector(0, 0, 1), 2), math.radians(90), math.radians(270)), False)  # 16
sketch3.addGeometry(Part.LineSegment(App.Vector(-45.5, 22, 0), App.Vector(-42.5, 22, 0)), False)  # 17
sketch3.addGeometry(Part.ArcOfCircle(Part.Circle(App.Vector(-42.5, 20, 0), App.Vector(0, 0, 1), 2), math.radians(-90), math.radians(90)), False)  # 18
sketch3.addGeometry(Part.LineSegment(App.Vector(-42.5, 18, 0), App.Vector(-45.5, 18, 0)), False)  # 19
sketch3.addGeometry(Part.ArcOfCircle(Part.Circle(App.Vector(-18.5, 20, 0), App.Vector(0, 0, 1), 2), math.radians(-90), math.radians(90)), False)  # 20
sketch3.addGeometry(Part.LineSegment(App.Vector(-18.5, 18, 0), App.Vector(-21.5, 18, 0)), False)  # 21
sketch3.addGeometry(Part.ArcOfCircle(Part.Circle(App.Vector(-21.5, 20, 0), App.Vector(0, 0, 1), 2), math.radians(90), math.radians(270)), False)  # 22
sketch3.addGeometry(Part.LineSegment(App.Vector(-21.5, 22, 0), App.Vector(-18.5, 22, 0)), False)  # 23
sketch3.addGeometry(Part.LineSegment(App.Vector(21.5, 18, 0), App.Vector(18.5, 18, 0)), False)  # 24
sketch3.addGeometry(Part.ArcOfCircle(Part.Circle(App.Vector(18.5, 20, 0), App.Vector(0, 0, 1), 2), math.radians(90), math.radians(270)), False)  # 25
sketch3.addGeometry(Part.LineSegment(App.Vector(18.5, 22, 0), App.Vector(21.5, 22, 0)), False)  # 26
sketch3.addGeometry(Part.ArcOfCircle(Part.Circle(App.Vector(21.5, 20, 0), App.Vector(0, 0, 1), 2), math.radians(-90), math.radians(90)), False)  # 27
sketch3.addGeometry(Part.LineSegment(App.Vector(45.5, 18, 0), App.Vector(42.5, 18, 0)), False)  # 28
sketch3.addGeometry(Part.ArcOfCircle(Part.Circle(App.Vector(42.5, 20, 0), App.Vector(0, 0, 1), 2), math.radians(90), math.radians(270)), False)  # 29
sketch3.addGeometry(Part.LineSegment(App.Vector(42.5, 22, 0), App.Vector(45.5, 22, 0)), False)  # 30
sketch3.addGeometry(Part.ArcOfCircle(Part.Circle(App.Vector(45.5, 20, 0), App.Vector(0, 0, 1), 2), math.radians(-90), math.radians(90)), False)  # 31
sketch3.addGeometry(Part.LineSegment(App.Vector(69.5, 18, 0), App.Vector(66.5, 18, 0)), False)  # 32
sketch3.addGeometry(Part.ArcOfCircle(Part.Circle(App.Vector(66.5, 20, 0), App.Vector(0, 0, 1), 2), math.radians(90), math.radians(270)), False)  # 33
sketch3.addGeometry(Part.LineSegment(App.Vector(66.5, 22, 0), App.Vector(69.5, 22, 0)), False)  # 34
sketch3.addGeometry(Part.ArcOfCircle(Part.Circle(App.Vector(69.5, 20, 0), App.Vector(0, 0, 1), 2), math.radians(-90), math.radians(90)), False)  # 35
add_polygon(sketch3, [(4, 32), (4, 16), (-4, 16), (-4, 32)])  # lines 36-39
sketch3.addConstraint([
    Sketcher.Constraint("Tangent", 0, 2, 1, 1),
    Sketcher.Constraint("Tangent", 1, 2, 2, 1),
    Sketcher.Constraint("Coincident", 2, 2, 3, 1),
    Sketcher.Constraint("Coincident", 3, 2, 4, 1),
    Sketcher.Constraint("Coincident", 4, 2, 5, 1),
    Sketcher.Constraint("Coincident", 5, 2, 6, 1),
    Sketcher.Constraint("Coincident", 6, 2, 7, 1),
    Sketcher.Constraint("Coincident", 7, 2, 8, 1),
    Sketcher.Constraint("Tangent", 8, 2, 9, 1),
    Sketcher.Constraint("Tangent", 9, 2, 10, 1),
    Sketcher.Constraint("Coincident", 10, 2, 11, 1),
    Sketcher.Constraint("Coincident", 11, 2, 0, 1),
    Sketcher.Constraint("Tangent", 12, 1, 13, 1),
    Sketcher.Constraint("Tangent", 13, 2, 14, 2),
    Sketcher.Constraint("Tangent", 14, 1, 15, 1),
    Sketcher.Constraint("Tangent", 15, 2, 12, 2),
    Sketcher.Constraint("Tangent", 16, 1, 17, 1),
    Sketcher.Constraint("Tangent", 17, 2, 18, 2),
    Sketcher.Constraint("Tangent", 18, 1, 19, 1),
    Sketcher.Constraint("Tangent", 19, 2, 16, 2),
    Sketcher.Constraint("Tangent", 20, 1, 21, 1),
    Sketcher.Constraint("Tangent", 21, 2, 22, 2),
    Sketcher.Constraint("Tangent", 22, 1, 23, 1),
    Sketcher.Constraint("Tangent", 23, 2, 20, 2),
    Sketcher.Constraint("Tangent", 24, 2, 25, 2),
    Sketcher.Constraint("Tangent", 25, 1, 26, 1),
    Sketcher.Constraint("Tangent", 26, 2, 27, 2),
    Sketcher.Constraint("Tangent", 27, 1, 24, 1),
    Sketcher.Constraint("Tangent", 28, 2, 29, 2),
    Sketcher.Constraint("Tangent", 29, 1, 30, 1),
    Sketcher.Constraint("Tangent", 30, 2, 31, 2),
    Sketcher.Constraint("Tangent", 31, 1, 28, 1),
    Sketcher.Constraint("Tangent", 32, 2, 33, 2),
    Sketcher.Constraint("Tangent", 33, 1, 34, 1),
    Sketcher.Constraint("Tangent", 34, 2, 35, 2),
    Sketcher.Constraint("Tangent", 35, 1, 32, 1),
    Sketcher.Constraint("Vertical", 0),
    Sketcher.Constraint("Horizontal", 2),
    Sketcher.Constraint("Horizontal", 5),
    Sketcher.Constraint("Horizontal", 8),
    Sketcher.Constraint("Vertical", 10),
    Sketcher.Constraint("Horizontal", 11),
    Sketcher.Constraint("Horizontal", 13),
    Sketcher.Constraint("Horizontal", 15),
    Sketcher.Constraint("Horizontal", 17),
    Sketcher.Constraint("Horizontal", 19),
    Sketcher.Constraint("Horizontal", 21),
    Sketcher.Constraint("Horizontal", 23),
    Sketcher.Constraint("Horizontal", 24),
    Sketcher.Constraint("Horizontal", 26),
    Sketcher.Constraint("Horizontal", 28),
    Sketcher.Constraint("Horizontal", 30),
    Sketcher.Constraint("Horizontal", 32),
    Sketcher.Constraint("Horizontal", 34),
    Sketcher.Constraint("Vertical", 36),
    Sketcher.Constraint("Horizontal", 37),
    Sketcher.Constraint("Vertical", 38),
    Sketcher.Constraint("Horizontal", 39),
    Sketcher.Constraint("Equal", 1, 9),
    Sketcher.Constraint("Equal", 14, 16),
    Sketcher.Constraint("Equal", 18, 20),
    Sketcher.Constraint("Equal", 22, 25),
    Sketcher.Constraint("Equal", 27, 29),
    Sketcher.Constraint("Equal", 31, 33),
    Sketcher.Constraint("Symmetric", 1, 3, 9, 3, -2),
    Sketcher.Constraint("Symmetric", 20, 3, 25, 3, -2),
    Sketcher.Constraint("Symmetric", 18, 3, 29, 3, -2),
    Sketcher.Constraint("Symmetric", 12, 3, 33, 3, -2),
    Sketcher.Constraint("Symmetric", 3, 2, 6, 2, -2),
    Sketcher.Constraint("Perpendicular", 3, 4),
    Sketcher.Constraint("Perpendicular", 4, 6),
    Sketcher.Constraint("Perpendicular", 6, 7),
    Sketcher.Constraint("Horizontal", 14, 3, 16, 3),
    Sketcher.Constraint("Horizontal", 18, 3, 20, 3),
    Sketcher.Constraint("Horizontal", 2, 2, 4, 2),
    Sketcher.Constraint("Vertical", 3, 2, 36, 2),
    Sketcher.Constraint("Vertical", 6, 2, 37, 2),
    Sketcher.Constraint("Equal", 2, 8),
    Sketcher.Constraint("Equal", 15, 17),
    Sketcher.Constraint("Equal", 19, 21),
    Sketcher.Constraint("Equal", 23, 24),
    Sketcher.Constraint("Equal", 26, 28),
    Sketcher.Constraint("Equal", 30, 32),
    Sketcher.Constraint("Radius", 1, Q("4 mm")),
    Sketcher.Constraint("Radius", 12, Q("2 mm")),
    Sketcher.Constraint("DistanceX", 5, 2, 5, 1, Q("7 mm")),
    Sketcher.Constraint("DistanceX", 11, 1, 11, 2, Q("168 mm")),
    Sketcher.Constraint("DistanceX", 13, 2, 13, 1, Q("3 mm")),
    Sketcher.Constraint("DistanceX", 37, 2, 37, 1, Q("8 mm")),
    Sketcher.Constraint("DistanceY", 0, 1, 0, 2, Q("28 mm")),
    Sketcher.Constraint("DistanceY", 36, 2, 36, 1, Q("16 mm")),
    Sketcher.Constraint("DistanceY", -1, 1, 1, 3, Q("36 mm")),
    Sketcher.Constraint("DistanceY", -1, 1, 12, 3, Q("20 mm")),
    Sketcher.Constraint("DistanceY", -1, 1, 36, 2, Q("16 mm")),
    Sketcher.Constraint("DistanceX", 12, 3, 16, 3, Q("21 mm")),
    Sketcher.Constraint("DistanceX", 18, 3, 20, 3, Q("24 mm")),
    Sketcher.Constraint("DistanceX", 20, 3, 25, 3, Q("37 mm")),
])
sketch3.setExpression("Constraints[87]", "Params.sketch3_radius")
sketch3.setExpression("Constraints[88]", "Params.sketch3_radius2")
sketch3.setExpression("Constraints[89]", "Params.sketch3_width")
sketch3.setExpression("Constraints[90]", "Params.sketch3_width2")
sketch3.setExpression("Constraints[91]", "Params.sketch3_width3")
pad3 = body3.newObject("PartDesign::Pad", "Pad002")
pad3.Profile = sketch3
pad3.setExpression("Length", "Params.pad3_length")

doc.recompute()
